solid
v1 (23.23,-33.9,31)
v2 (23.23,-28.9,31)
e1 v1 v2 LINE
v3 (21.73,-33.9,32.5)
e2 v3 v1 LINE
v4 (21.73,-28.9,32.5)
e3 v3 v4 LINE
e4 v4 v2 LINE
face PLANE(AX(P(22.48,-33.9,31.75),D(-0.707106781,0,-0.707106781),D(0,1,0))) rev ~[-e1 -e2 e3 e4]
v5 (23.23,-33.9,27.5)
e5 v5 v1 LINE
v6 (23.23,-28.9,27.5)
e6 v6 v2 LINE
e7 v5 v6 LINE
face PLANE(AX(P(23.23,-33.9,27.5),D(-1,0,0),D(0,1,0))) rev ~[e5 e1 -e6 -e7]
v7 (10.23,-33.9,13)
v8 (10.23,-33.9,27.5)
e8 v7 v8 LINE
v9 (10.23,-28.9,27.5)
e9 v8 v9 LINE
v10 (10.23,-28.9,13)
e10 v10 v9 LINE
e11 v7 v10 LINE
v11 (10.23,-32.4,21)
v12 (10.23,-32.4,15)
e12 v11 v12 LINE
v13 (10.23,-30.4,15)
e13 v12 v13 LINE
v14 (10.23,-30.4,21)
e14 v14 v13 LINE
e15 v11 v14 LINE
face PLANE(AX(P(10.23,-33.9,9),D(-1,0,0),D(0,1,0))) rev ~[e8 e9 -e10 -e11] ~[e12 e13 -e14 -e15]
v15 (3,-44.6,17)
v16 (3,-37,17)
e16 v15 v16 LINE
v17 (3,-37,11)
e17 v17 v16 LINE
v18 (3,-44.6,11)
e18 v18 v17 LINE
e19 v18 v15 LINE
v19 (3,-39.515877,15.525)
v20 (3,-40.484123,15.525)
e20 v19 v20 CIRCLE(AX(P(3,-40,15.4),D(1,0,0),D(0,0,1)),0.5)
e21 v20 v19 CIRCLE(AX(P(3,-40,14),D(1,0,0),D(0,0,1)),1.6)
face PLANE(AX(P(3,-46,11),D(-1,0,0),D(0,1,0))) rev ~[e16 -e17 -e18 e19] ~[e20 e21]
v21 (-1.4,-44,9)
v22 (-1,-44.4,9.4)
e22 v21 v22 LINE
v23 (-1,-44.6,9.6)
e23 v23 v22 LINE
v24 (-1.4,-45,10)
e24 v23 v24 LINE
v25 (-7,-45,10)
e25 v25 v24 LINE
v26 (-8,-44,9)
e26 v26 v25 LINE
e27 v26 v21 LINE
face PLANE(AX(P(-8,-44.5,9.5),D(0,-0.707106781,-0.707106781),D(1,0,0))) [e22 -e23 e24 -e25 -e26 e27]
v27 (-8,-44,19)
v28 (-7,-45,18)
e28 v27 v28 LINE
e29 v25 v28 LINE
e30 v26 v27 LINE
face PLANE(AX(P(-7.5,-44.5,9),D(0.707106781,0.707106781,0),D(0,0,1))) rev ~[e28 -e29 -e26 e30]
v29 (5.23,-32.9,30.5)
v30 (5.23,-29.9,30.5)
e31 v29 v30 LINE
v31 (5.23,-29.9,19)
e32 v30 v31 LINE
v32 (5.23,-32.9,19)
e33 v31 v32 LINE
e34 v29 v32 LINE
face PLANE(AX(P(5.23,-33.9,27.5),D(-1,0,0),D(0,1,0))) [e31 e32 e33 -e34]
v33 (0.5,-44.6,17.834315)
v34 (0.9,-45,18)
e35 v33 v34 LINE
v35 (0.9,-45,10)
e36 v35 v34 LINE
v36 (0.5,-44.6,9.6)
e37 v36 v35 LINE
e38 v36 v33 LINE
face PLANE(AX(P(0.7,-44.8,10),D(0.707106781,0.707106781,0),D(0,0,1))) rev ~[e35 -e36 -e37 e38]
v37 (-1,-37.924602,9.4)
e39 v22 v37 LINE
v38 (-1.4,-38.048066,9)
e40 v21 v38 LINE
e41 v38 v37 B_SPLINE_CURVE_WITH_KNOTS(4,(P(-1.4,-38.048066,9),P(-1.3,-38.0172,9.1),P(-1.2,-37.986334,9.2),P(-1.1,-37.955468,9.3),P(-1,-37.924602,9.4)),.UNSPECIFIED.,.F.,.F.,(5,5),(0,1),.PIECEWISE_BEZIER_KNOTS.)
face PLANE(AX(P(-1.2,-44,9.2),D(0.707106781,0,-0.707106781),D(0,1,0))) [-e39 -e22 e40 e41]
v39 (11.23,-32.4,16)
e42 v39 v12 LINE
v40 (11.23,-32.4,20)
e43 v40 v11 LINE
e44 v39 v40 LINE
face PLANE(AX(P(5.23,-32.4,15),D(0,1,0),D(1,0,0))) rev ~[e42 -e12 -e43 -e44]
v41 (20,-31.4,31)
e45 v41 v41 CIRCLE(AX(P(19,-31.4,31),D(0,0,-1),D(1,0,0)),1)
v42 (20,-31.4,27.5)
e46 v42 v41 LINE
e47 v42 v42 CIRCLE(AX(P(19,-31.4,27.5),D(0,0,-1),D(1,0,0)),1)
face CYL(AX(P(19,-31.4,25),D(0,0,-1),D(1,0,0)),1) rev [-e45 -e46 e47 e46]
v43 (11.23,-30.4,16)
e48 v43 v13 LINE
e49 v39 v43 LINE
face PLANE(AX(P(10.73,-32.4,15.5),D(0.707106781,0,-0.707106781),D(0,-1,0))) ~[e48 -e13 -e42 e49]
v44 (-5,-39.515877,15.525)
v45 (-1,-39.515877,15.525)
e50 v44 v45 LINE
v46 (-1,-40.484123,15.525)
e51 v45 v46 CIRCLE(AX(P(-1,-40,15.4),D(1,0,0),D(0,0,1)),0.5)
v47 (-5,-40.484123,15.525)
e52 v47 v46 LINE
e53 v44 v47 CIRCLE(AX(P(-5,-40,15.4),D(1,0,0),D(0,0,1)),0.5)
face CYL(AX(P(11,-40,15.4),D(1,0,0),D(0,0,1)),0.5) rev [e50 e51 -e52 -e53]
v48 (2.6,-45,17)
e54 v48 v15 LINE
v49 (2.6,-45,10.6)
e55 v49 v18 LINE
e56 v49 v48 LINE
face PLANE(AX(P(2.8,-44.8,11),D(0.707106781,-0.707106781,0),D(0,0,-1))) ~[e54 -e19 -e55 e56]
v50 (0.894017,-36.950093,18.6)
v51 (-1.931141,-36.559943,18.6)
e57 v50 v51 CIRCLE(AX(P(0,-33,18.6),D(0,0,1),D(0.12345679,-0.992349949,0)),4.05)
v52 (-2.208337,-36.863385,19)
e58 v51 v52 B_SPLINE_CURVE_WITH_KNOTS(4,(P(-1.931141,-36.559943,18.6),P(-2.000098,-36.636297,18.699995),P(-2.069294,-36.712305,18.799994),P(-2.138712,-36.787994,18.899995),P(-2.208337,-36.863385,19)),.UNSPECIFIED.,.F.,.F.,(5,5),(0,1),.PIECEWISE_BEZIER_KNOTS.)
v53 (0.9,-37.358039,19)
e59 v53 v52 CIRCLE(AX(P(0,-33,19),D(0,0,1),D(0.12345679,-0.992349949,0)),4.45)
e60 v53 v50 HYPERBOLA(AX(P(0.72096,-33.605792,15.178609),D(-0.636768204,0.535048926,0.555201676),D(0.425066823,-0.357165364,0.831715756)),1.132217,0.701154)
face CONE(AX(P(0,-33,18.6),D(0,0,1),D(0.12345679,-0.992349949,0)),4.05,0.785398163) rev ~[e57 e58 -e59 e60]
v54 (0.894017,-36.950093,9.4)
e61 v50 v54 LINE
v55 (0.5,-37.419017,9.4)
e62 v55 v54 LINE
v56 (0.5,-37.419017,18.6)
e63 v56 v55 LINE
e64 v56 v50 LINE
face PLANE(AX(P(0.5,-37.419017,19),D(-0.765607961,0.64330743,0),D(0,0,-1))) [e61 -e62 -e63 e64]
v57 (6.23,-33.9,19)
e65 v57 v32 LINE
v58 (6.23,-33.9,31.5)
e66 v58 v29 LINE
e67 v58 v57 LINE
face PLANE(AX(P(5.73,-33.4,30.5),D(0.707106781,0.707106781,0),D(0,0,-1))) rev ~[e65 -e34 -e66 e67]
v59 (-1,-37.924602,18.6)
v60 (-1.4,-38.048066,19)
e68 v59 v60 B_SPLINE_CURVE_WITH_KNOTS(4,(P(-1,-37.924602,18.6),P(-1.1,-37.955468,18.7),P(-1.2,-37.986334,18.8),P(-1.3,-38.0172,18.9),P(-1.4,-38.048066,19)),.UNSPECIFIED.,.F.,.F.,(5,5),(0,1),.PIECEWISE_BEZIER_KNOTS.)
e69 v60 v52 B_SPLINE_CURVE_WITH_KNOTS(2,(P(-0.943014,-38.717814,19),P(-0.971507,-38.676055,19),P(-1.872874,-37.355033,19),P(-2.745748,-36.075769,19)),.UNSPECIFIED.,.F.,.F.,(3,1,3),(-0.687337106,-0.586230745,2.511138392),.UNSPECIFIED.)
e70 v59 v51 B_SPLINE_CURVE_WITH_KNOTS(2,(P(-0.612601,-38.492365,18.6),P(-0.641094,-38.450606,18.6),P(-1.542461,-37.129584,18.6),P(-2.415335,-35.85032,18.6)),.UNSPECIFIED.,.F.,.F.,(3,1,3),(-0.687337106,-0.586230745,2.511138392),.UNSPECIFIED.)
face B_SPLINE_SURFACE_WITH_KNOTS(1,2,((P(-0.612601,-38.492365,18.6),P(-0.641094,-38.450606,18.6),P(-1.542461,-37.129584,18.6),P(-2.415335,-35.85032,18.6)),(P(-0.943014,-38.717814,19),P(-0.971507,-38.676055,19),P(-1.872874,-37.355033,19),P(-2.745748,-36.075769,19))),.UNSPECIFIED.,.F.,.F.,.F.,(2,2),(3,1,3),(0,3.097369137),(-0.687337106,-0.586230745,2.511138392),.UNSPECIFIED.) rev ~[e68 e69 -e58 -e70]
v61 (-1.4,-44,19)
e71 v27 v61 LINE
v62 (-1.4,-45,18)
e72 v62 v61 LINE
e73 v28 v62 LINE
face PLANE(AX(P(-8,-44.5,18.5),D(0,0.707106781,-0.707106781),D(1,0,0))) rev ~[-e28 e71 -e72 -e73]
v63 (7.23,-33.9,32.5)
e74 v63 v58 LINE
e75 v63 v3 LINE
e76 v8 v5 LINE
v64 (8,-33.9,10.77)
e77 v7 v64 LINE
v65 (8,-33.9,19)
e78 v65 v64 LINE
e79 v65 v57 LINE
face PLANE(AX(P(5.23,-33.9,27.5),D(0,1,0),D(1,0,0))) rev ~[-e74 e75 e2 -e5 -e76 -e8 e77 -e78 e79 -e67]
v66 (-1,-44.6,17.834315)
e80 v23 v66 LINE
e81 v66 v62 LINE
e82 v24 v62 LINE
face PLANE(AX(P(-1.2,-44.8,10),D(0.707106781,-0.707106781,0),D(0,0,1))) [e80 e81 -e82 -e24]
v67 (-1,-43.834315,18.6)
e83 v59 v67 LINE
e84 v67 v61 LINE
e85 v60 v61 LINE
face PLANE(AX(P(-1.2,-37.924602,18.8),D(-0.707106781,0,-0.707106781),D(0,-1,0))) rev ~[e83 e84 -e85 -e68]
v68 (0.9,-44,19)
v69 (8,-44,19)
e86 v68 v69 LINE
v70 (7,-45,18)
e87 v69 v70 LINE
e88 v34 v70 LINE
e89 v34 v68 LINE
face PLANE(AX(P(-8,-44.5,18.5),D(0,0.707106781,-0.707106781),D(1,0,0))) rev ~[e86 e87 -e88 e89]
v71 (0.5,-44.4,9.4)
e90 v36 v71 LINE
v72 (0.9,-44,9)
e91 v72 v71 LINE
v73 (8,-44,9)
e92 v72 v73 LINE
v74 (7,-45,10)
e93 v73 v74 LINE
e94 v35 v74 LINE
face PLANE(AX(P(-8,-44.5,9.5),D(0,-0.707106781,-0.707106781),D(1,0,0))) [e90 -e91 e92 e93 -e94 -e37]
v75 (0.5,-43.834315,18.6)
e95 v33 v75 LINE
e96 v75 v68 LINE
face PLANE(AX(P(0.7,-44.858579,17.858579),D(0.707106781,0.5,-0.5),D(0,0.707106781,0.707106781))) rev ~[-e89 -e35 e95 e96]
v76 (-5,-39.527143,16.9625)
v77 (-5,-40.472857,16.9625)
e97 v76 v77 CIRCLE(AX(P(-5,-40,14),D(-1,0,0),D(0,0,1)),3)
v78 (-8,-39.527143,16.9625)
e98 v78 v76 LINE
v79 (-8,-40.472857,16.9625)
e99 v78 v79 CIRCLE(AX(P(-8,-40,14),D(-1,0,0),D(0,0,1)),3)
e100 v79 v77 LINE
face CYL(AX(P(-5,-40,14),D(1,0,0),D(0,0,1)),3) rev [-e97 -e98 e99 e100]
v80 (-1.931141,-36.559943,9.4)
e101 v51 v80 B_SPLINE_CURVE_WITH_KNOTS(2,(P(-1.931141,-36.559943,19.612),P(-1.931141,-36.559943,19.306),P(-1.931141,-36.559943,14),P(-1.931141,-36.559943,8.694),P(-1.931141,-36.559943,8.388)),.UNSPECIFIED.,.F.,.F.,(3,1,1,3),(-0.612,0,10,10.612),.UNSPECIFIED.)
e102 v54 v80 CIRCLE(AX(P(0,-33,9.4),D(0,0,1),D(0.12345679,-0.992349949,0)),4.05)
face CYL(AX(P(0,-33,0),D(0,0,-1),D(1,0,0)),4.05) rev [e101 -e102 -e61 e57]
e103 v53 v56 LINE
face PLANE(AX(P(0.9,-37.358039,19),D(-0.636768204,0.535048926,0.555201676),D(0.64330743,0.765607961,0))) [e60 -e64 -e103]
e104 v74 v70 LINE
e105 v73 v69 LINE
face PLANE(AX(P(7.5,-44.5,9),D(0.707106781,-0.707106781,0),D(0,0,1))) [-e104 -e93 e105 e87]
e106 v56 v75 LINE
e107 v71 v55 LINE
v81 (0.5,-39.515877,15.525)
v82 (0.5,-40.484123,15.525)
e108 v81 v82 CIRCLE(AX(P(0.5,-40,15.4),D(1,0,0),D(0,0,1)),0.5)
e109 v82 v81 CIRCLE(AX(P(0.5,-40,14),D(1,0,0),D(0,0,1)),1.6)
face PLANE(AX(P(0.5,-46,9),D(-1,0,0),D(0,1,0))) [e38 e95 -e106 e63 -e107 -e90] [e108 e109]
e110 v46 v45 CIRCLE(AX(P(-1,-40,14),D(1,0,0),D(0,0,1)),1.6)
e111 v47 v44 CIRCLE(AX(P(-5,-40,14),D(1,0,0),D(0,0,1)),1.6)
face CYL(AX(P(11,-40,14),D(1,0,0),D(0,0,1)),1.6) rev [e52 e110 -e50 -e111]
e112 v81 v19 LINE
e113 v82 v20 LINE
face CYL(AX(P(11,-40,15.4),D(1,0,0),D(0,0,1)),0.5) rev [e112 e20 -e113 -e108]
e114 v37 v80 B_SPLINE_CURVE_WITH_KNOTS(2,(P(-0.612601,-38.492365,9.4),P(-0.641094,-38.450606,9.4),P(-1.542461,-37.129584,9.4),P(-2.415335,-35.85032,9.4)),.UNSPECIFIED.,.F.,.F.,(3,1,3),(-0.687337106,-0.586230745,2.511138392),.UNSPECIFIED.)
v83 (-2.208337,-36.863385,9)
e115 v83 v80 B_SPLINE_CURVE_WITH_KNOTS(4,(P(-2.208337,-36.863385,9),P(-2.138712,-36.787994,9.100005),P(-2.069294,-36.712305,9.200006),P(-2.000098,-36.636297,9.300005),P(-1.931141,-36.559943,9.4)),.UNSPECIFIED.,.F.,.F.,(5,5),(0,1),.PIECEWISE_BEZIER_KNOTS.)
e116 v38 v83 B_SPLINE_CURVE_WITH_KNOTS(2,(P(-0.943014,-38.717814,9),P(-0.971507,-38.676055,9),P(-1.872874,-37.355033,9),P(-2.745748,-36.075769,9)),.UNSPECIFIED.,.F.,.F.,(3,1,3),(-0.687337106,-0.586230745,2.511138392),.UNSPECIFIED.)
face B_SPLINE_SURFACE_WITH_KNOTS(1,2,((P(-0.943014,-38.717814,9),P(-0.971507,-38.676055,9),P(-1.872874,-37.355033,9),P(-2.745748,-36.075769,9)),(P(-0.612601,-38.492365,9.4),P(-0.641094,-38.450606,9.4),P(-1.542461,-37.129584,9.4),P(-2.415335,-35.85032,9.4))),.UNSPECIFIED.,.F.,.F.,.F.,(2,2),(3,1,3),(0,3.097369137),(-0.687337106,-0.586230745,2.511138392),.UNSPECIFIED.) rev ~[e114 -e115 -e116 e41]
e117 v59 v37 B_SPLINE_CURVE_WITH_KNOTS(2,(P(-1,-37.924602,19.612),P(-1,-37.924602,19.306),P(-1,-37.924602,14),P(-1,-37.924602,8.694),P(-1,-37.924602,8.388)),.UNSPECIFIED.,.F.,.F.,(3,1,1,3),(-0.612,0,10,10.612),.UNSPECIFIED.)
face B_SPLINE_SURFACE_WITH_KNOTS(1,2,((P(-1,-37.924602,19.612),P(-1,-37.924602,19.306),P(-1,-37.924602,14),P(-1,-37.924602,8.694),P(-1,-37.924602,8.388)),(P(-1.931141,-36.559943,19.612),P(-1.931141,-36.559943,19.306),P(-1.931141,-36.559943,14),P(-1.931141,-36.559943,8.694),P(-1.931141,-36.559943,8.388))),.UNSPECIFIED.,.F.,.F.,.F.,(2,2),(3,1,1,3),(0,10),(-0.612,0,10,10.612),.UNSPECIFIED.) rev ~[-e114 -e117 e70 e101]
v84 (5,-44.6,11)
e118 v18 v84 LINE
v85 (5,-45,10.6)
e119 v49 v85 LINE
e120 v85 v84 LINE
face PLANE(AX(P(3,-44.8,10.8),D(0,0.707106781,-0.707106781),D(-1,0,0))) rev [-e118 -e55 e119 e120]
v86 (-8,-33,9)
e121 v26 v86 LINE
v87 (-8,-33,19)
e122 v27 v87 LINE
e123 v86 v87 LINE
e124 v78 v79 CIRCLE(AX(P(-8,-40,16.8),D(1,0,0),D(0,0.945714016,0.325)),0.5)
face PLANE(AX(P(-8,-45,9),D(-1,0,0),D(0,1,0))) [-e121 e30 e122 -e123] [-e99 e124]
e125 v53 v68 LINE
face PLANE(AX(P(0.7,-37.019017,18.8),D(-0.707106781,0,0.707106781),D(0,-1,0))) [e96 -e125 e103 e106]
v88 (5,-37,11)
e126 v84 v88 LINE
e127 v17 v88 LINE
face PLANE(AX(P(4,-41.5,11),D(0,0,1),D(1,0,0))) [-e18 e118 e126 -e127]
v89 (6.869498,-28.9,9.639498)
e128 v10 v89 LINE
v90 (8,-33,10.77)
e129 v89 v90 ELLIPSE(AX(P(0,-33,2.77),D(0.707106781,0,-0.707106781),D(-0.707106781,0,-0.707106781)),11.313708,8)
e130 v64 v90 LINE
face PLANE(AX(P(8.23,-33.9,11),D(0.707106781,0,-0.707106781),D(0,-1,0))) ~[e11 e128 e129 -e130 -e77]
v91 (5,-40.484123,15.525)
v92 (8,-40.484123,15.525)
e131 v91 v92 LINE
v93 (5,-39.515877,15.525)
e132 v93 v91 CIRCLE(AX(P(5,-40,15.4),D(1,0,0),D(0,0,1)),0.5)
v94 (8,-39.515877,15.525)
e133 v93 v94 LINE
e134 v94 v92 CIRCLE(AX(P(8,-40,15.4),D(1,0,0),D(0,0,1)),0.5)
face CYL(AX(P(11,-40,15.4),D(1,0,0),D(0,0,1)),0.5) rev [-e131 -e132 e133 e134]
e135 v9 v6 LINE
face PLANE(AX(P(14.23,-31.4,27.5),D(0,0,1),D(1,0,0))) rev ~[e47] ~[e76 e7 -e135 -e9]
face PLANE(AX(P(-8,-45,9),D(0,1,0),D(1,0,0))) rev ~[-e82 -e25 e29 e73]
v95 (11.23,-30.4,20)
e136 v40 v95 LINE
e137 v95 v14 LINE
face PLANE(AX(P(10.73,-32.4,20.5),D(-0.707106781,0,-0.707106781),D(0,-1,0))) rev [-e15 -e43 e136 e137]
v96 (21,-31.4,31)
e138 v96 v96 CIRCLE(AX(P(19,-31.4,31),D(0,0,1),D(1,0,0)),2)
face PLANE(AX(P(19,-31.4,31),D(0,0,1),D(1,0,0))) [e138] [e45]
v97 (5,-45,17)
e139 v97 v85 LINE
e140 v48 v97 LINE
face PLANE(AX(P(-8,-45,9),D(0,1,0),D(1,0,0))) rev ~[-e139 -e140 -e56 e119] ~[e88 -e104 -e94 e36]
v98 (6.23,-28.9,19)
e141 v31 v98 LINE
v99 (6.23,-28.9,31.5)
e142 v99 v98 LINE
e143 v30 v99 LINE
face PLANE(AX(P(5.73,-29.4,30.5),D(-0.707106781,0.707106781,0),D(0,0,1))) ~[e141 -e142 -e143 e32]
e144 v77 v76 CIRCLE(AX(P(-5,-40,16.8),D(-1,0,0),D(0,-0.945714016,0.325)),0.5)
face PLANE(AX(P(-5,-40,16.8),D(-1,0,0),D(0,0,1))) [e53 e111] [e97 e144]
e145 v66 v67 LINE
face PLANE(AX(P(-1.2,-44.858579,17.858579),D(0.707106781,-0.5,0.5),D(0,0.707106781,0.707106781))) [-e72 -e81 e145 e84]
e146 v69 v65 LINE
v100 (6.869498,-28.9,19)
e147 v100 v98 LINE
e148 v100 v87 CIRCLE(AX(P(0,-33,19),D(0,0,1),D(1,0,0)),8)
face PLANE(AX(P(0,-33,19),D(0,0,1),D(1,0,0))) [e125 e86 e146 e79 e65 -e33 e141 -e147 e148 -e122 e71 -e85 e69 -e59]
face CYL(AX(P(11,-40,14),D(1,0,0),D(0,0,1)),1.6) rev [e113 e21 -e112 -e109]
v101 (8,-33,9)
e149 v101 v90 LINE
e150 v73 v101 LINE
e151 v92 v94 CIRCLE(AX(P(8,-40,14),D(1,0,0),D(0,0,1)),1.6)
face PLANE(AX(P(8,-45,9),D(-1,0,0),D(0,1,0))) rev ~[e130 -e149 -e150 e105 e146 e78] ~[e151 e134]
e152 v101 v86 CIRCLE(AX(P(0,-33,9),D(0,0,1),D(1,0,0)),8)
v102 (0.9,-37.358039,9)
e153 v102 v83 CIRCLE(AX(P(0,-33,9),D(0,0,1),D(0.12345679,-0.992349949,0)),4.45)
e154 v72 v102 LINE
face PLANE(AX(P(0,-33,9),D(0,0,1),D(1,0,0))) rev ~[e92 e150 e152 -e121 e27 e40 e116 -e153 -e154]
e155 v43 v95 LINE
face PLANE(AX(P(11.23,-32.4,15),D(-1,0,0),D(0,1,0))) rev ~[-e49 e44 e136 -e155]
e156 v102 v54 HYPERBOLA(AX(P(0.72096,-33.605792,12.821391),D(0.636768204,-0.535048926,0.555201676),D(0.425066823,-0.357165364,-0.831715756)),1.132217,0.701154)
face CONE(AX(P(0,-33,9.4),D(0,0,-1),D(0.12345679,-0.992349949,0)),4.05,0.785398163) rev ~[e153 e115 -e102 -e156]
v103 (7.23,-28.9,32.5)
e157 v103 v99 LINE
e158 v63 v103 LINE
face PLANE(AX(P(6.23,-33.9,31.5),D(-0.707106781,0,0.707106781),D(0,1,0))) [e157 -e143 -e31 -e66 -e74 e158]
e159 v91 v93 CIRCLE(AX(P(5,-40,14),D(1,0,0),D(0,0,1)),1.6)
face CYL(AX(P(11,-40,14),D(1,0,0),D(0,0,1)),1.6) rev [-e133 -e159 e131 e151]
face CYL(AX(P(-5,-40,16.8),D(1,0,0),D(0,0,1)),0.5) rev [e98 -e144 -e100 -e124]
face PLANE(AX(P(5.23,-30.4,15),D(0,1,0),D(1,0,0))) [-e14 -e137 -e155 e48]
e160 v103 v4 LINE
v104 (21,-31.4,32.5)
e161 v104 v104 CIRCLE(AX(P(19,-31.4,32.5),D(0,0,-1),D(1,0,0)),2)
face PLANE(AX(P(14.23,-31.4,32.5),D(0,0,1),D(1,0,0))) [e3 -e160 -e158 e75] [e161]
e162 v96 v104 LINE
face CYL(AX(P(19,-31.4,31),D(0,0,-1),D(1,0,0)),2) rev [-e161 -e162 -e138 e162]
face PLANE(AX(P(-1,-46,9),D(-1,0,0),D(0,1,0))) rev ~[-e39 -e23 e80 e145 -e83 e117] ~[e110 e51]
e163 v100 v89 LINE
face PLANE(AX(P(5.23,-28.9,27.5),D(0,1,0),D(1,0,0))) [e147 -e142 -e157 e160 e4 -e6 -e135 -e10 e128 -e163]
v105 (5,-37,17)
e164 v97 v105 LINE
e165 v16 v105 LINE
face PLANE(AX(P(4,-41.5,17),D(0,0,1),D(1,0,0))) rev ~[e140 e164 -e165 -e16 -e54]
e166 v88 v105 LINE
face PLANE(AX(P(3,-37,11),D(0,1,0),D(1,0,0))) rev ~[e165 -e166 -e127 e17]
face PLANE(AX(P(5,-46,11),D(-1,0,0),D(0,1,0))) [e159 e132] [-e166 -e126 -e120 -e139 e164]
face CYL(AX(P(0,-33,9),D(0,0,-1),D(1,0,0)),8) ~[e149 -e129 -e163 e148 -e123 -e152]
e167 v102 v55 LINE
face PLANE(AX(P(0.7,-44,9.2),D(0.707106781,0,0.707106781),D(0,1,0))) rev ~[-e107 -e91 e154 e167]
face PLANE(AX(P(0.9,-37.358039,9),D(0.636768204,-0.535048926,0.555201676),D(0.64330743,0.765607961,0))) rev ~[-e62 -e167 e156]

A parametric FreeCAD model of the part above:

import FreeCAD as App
import Part
import Sketcher
from FreeCAD import Vector
Q = App.Units.Quantity


def edges_at(feature, points):
    """Names of the edges that pass closest to the given points."""
    edges = feature.Shape.Edges
    near = lambda p: min(range(len(edges)), key=lambda i: edges[i].distToShape(Part.Vertex(*p))[0])
    return sorted({f"Edge{near(p) + 1}" for p in points})


def add_polygon(sketch, points):
    """Adds a closed chain of lines whose ends are joined by coincident constraints."""
    first, n = sketch.GeometryCount, len(points)
    for a, b in zip(points, points[1:] + points[:1]):
        sketch.addGeometry(Part.LineSegment(App.Vector(*a, 0), App.Vector(*b, 0)), False)
    for i in range(n):
        sketch.addConstraint(Sketcher.Constraint("Coincident", first + i, 2, first + (i + 1) % n, 1))

doc = App.newDocument("Part")
params = doc.addObject("Spreadsheet::Sheet", "Params")
for row, (alias, value) in enumerate([
    ("sketch1_width", "6 mm"),
    ("sketch1_height", "2 mm"),
    ("pad1_length", "6 mm"),
    ("chamfer_size", "1 mm"),
    ("sketch2_diameter", "4 mm"),
    ("pad2_length", "2 mm"),
    ("sketch3_diameter", "2 mm"),
    ("pad3_length", "14 mm"),
    ("sketch4_width", "18 mm"),
    ("sketch4_height", "5 mm"),
    ("pad4_length", "5 mm"),
    ("chamfer2_size", "1.5 mm"),
    ("chamfer3_size", "2 mm"),
    ("sketch5_width", "5 mm"),
    ("pad5_length", "19 mm"),
    ("chamfer4_size", "4 mm"),
    ("chamfer5_size", "1 mm"),
    ("sketch6_width", "2 mm"),
    ("sketch6_height", "9 mm"),
    ("pad6_length", "6 mm"),
    ("sketch7_height", "12 mm"),
    ("sketch7_width", "1.5 mm"),
    ("pad7_length", "11 mm"),
    ("sketch8_diameter", "8.1 mm"),
    ("pad8_length", "19 mm"),
    ("sketch9_diameter", "1 mm"),
    ("pad9_length", "20 mm"),
    ("sketch10_diameter", "3.2 mm"),
    ("pad10_length", "20 mm"),
    ("sketch11_diameter", "1 mm"),
    ("pad11_length", "3 mm"),
    ("sketch12_diameter", "6 mm"),
    ("pad12_length", "3 mm"),
    ("sketch13_diameter", "8 mm"),
    ("pad13_length", "10 mm"),
    ("sketch14_diameter", "16 mm"),
    ("pad14_length", "10 mm"),
    ("sketch15_width", "16 mm"),
    ("sketch15_height", "12 mm"),
    ("pad15_length", "10 mm"),
    ("chamfer6_size", "1 mm"),
    ("chamfer7_size", "1 mm"),
    ("chamfer8_size", "0.4 mm"),
], start=1):
    params.set(f"A{row}", alias)
    params.set(f"B{row}", "=" + value)
    params.setAlias(f"B{row}", alias)

body = doc.addObject("PartDesign::Body", "Body")

# Sketch on XY plane
sketch1 = body.newObject("Sketcher::SketchObject", "Sketch")
sketch1.AttachmentSupport = (doc.getObject("XY_Plane"), [""])
sketch1.MapMode = "FlatFace"
sketch1.AttachmentOffset = App.Placement(Vector(0, 0, 15), App.Rotation())
add_polygon(sketch1, [(5.2, -30.4), (5.2, -32.4), (11.2, -32.4), (11.2, -30.4)])  # lines 0-3
sketch1.addConstraint([
    Sketcher.Constraint("Vertical", 0),
    Sketcher.Constraint("Horizontal", 1),
    Sketcher.Constraint("Vertical", 2),
    Sketcher.Constraint("Horizontal", 3),
    Sketcher.Constraint("DistanceX", 1, 1, 1, 2, Q("6 mm")),
    Sketcher.Constraint("DistanceY", 0, 2, 0, 1, Q("2 mm")),
    Sketcher.Constraint("DistanceY", 0, 2, -1, 1, Q("32.4 mm")),
    Sketcher.Constraint("DistanceX", -1, 1, 0, 2, Q("5.23 mm")),
])
sketch1.setExpression("Constraints[8]", "Params.sketch1_width")
sketch1.setExpression("Constraints[9]", "Params.sketch1_height")
pad1 = body.newObject("PartDesign::Pad", "Pad")
pad1.Profile = sketch1
pad1.setExpression("Length", "Params.pad1_length")
doc.recompute()

chamfer = body.newObject("PartDesign::Chamfer", "Chamfer")
chamfer.Base = (pad1, edges_at(pad1, [(11.23, -31.4, 21), (11.23, -31.4, 15)]))
chamfer.setExpression("Size", "Params.chamfer_size")
body2 = doc.addObject("PartDesign::Body", "Body001")

# Sketch on XY plane
sketch2 = body2.newObject("Sketcher::SketchObject", "Sketch001")
sketch2.AttachmentSupport = (doc.getObject("XY_Plane001"), [""])
sketch2.MapMode = "FlatFace"
sketch2.AttachmentOffset = App.Placement(Vector(0, 0, 31), App.Rotation())
sketch2.addGeometry(Part.Circle(Vector(19, -31.4, 0), Vector(0, 0, 1), 2), False)
sketch2.addConstraint([
    Sketcher.Constraint("Diameter", 0, Q("4 mm")),
    Sketcher.Constraint("DistanceX", -1, 1, 0, 3, Q("19 mm")),
    Sketcher.Constraint("DistanceY", 0, 3, -1, 1, Q("31.4 mm")),
])
sketch2.setExpression("Constraints[0]", "Params.sketch2_diameter")
pad2 = body2.newObject("PartDesign::Pad", "Pad001")
pad2.Profile = sketch2
pad2.setExpression("Length", "Params.pad2_length")
body3 = doc.addObject("PartDesign::Body", "Body002")

# Sketch on XY plane
sketch3 = body3.newObject("Sketcher::SketchObject", "Sketch002")
sketch3.AttachmentSupport = (doc.getObject("XY_Plane002"), [""])
sketch3.MapMode = "FlatFace"
sketch3.AttachmentOffset = App.Placement(Vector(0, 0, 25), App.Rotation())
sketch3.addGeometry(Part.Circle(Vector(19, -31.4, 0), Vector(0, 0, 1), 1), False)
sketch3.addConstraint([
    Sketcher.Constraint("Diameter", 0, Q("2 mm")),
    Sketcher.Constraint("DistanceX", -1, 1, 0, 3, Q("19 mm")),
    Sketcher.Constraint("DistanceY", 0, 3, -1, 1, Q("31.4 mm")),
])
sketch3.setExpression("Constraints[0]", "Params.sketch3_diameter")
pad3 = body3.newObject("PartDesign::Pad", "Pad002")
pad3.Profile = sketch3
pad3.setExpression("Length", "Params.pad3_length")
body4 = doc.addObject("PartDesign::Body", "Body003")

# Sketch on XY plane
sketch4 = body4.newObject("Sketcher::SketchObject", "Sketch003")
sketch4.AttachmentSupport = (doc.getObject("XY_Plane003"), [""])
sketch4.MapMode = "FlatFace"
sketch4.AttachmentOffset = App.Placement(Vector(0, 0, 27.5), App.Rotation())
add_polygon(sketch4, [(5, -29), (5, -34), (23, -34), (23, -29)])  # lines 0-3
sketch4.addConstraint([
    Sketcher.Constraint("Vertical", 0),
    Sketcher.Constraint("Horizontal", 1),
    Sketcher.Constraint("Vertical", 2),
    Sketcher.Constraint("Horizontal", 3),
    Sketcher.Constraint("DistanceX", 1, 1, 1, 2, Q("18 mm")),
    Sketcher.Constraint("DistanceY", 0, 2, 0, 1, Q("5 mm")),
    Sketcher.Constraint("DistanceY", 0, 2, -1, 1, Q("33.9 mm")),
    Sketcher.Constraint("DistanceX", -1, 1, 0, 2, Q("5.23 mm")),
])
sketch4.setExpression("Constraints[8]", "Params.sketch4_width")
sketch4.setExpression("Constraints[9]", "Params.sketch4_height")
pad4 = body4.newObject("PartDesign::Pad", "Pad003")
pad4.Profile = sketch4
pad4.setExpression("Length", "Params.pad4_length")
doc.recompute()

boolean = body4.newObject("PartDesign::Boolean", "Boolean")
boolean.Type = "Cut"
boolean.addObjects([body3])
doc.recompute()

chamfer2 = body4.newObject("PartDesign::Chamfer", "Chamfer001")
chamfer2.Base = (boolean, edges_at(boolean, [(23.23, -31.4, 32.5)]))
chamfer2.setExpression("Size", "Params.chamfer2_size")
doc.recompute()

chamfer3 = body4.newObject("PartDesign::Chamfer", "Chamfer002")
chamfer3.Base = (chamfer2, edges_at(chamfer2, [(5.23, -31.4, 32.5)]))
chamfer3.setExpression("Size", "Params.chamfer3_size")
doc.recompute()

boolean2 = body4.newObject("PartDesign::Boolean", "Boolean001")
boolean2.Type = "Cut"
boolean2.addObjects([body2])
body5 = doc.addObject("PartDesign::Body", "Body004")

# Sketch on XY plane
sketch5 = body5.newObject("Sketcher::SketchObject", "Sketch004")
sketch5.AttachmentSupport = (doc.getObject("XY_Plane004"), [""])
sketch5.MapMode = "FlatFace"
sketch5.AttachmentOffset = App.Placement(Vector(0, 0, 9), App.Rotation())
add_polygon(sketch5, [(5, -29), (5, -34), (10, -34), (10, -29)])  # lines 0-3
sketch5.addConstraint([
    Sketcher.Constraint("Vertical", 0),
    Sketcher.Constraint("Horizontal", 1),
    Sketcher.Constraint("Vertical", 2),
    Sketcher.Constraint("Horizontal", 3),
    Sketcher.Constraint("Equal", 3, 0),
    Sketcher.Constraint("DistanceX", 1, 1, 1, 2, Q("5 mm")),
    Sketcher.Constraint("DistanceY", 0, 2, -1, 1, Q("33.9 mm")),
    Sketcher.Constraint("DistanceX", -1, 1, 0, 2, Q("5.23 mm")),
])
sketch5.setExpression("Constraints[9]", "Params.sketch5_width")
pad5 = body5.newObject("PartDesign::Pad", "Pad004")
pad5.Profile = sketch5
pad5.setExpression("Length", "Params.pad5_length")
doc.recompute()

chamfer4 = body5.newObject("PartDesign::Chamfer", "Chamfer003")
chamfer4.Base = (pad5, edges_at(pad5, [(10.23, -31.4, 9)]))
chamfer4.setExpression("Size", "Params.chamfer4_size")
doc.recompute()

boolean3 = body5.newObject("PartDesign::Boolean", "Boolean002")
boolean3.Type = "Fuse"
boolean3.addObjects([body])
doc.recompute()

boolean4 = body5.newObject("PartDesign::Boolean", "Boolean003")
boolean4.Type = "Fuse"
boolean4.addObjects([body4])
doc.recompute()

chamfer5 = body5.newObject("PartDesign::Chamfer", "Chamfer004")
chamfer5.Base = (boolean4, edges_at(boolean4, [(5.23, -33.9, 19.75), (5.23, -28.9, 19.75)]))
chamfer5.setExpression("Size", "Params.chamfer5_size")
body6 = doc.addObject("PartDesign::Body", "Body005")

# Sketch on XY plane
sketch6 = body6.newObject("Sketcher::SketchObject", "Sketch005")
sketch6.AttachmentSupport = (doc.getObject("XY_Plane005"), [""])
sketch6.MapMode = "FlatFace"
sketch6.AttachmentOffset = App.Placement(Vector(0, 0, 11), App.Rotation())
add_polygon(sketch6, [(3, -37), (3, -46), (5, -46), (5, -37)])  # lines 0-3
sketch6.addConstraint([
    Sketcher.Constraint("Vertical", 0),
    Sketcher.Constraint("Horizontal", 1),
    Sketcher.Constraint("Vertical", 2),
    Sketcher.Constraint("Horizontal", 3),
    Sketcher.Constraint("DistanceX", 1, 1, 1, 2, Q("2 mm")),
    Sketcher.Constraint("DistanceY", 0, 2, 0, 1, Q("9 mm")),
    Sketcher.Constraint("DistanceX", -1, 1, 0, 2, Q("3 mm")),
    Sketcher.Constraint("DistanceY", 0, 2, -1, 1, Q("46 mm")),
])
sketch6.setExpression("Constraints[8]", "Params.sketch6_width")
sketch6.setExpression("Constraints[9]", "Params.sketch6_height")
pad6 = body6.newObject("PartDesign::Pad", "Pad005")
pad6.Profile = sketch6
pad6.setExpression("Length", "Params.pad6_length")
body7 = doc.addObject("PartDesign::Body", "Body006")

# Sketch on XY plane
sketch7 = body7.newObject("Sketcher::SketchObject", "Sketch006")
sketch7.AttachmentSupport = (doc.getObject("XY_Plane006"), [""])
sketch7.MapMode = "FlatFace"
sketch7.AttachmentOffset = App.Placement(Vector(0, 0, 9), App.Rotation())
add_polygon(sketch7, [(-1, -34), (-1, -46), (0.5, -46), (0.5, -34)])  # lines 0-3
sketch7.addConstraint([
    Sketcher.Constraint("Vertical", 0),
    Sketcher.Constraint("Horizontal", 1),
    Sketcher.Constraint("Vertical", 2),
    Sketcher.Constraint("Horizontal", 3),
    Sketcher.Constraint("DistanceY", 0, 2, 0, 1, Q("12 mm")),
    Sketcher.Constraint("DistanceX", 1, 1, 1, 2, Q("1.5 mm")),
    Sketcher.Constraint("DistanceX", 0, 2, -1, 1, Q("1 mm")),
    Sketcher.Constraint("DistanceY", 0, 2, -1, 1, Q("46 mm")),
])
sketch7.setExpression("Constraints[8]", "Params.sketch7_height")
sketch7.setExpression("Constraints[9]", "Params.sketch7_width")
pad7 = body7.newObject("PartDesign::Pad", "Pad006")
pad7.Profile = sketch7
pad7.setExpression("Length", "Params.pad7_length")
body8 = doc.addObject("PartDesign::Body", "Body007")

# Sketch on XY plane
sketch8 = body8.newObject("Sketcher::SketchObject", "Sketch007")
sketch8.AttachmentSupport = (doc.getObject("XY_Plane007"), [""])
sketch8.MapMode = "FlatFace"
sketch8.addGeometry(Part.Circle(Vector(0, -33, 0), Vector(0, 0, 1), 4), False)
sketch8.addConstraint([
    Sketcher.Constraint("PointOnObject", 0, 3, -2),
    Sketcher.Constraint("Diameter", 0, Q("8.1 mm")),
    Sketcher.Constraint("DistanceY", 0, 3, -1, 1, Q("33 mm")),
])
sketch8.setExpression("Constraints[1]", "Params.sketch8_diameter")
pad8 = body8.newObject("PartDesign::Pad", "Pad007")
pad8.Profile = sketch8
pad8.setExpression("Length", "Params.pad8_length")
body9 = doc.addObject("PartDesign::Body", "Body008")

# Sketch on YZ plane
sketch9 = body9.newObject("Sketcher::SketchObject", "Sketch008")
sketch9.AttachmentSupport = (doc.getObject("YZ_Plane008"), [""])
sketch9.MapMode = "FlatFace"
sketch9.AttachmentOffset = App.Placement(Vector(0, 0, 11), App.Rotation())
sketch9.addGeometry(Part.Circle(Vector(-40, 16.4, 0), Vector(0, 0, 1), 0.5), False)
sketch9.addConstraint([
    Sketcher.Constraint("Diameter", 0, Q("1 mm")),
    Sketcher.Constraint("DistanceX", 0, 3, -1, 1, Q("40 mm")),
    Sketcher.Constraint("DistanceY", -1, 1, 0, 3, Q("16.4 mm")),
])
sketch9.setExpression("Constraints[0]", "Params.sketch9_diameter")
pad9 = body9.newObject("PartDesign::Pad", "Pad008")
pad9.Profile = sketch9
pad9.setExpression("Length", "Params.pad9_length")
pad9.Reversed = True
body10 = doc.addObject("PartDesign::Body", "Body009")

# Sketch on YZ plane
sketch10 = body10.newObject("Sketcher::SketchObject", "Sketch009")
sketch10.AttachmentSupport = (doc.getObject("YZ_Plane009"), [""])
sketch10.MapMode = "FlatFace"
sketch10.AttachmentOffset = App.Placement(Vector(0, 0, 11), App.Rotation())
sketch10.addGeometry(Part.Circle(Vector(-40, 15, 0), Vector(0, 0, 1), 1.6), False)
sketch10.addConstraint([
    Sketcher.Constraint("Diameter", 0, Q("3.2 mm")),
    Sketcher.Constraint("DistanceX", 0, 3, -1, 1, Q("40 mm")),
    Sketcher.Constraint("DistanceY", -1, 1, 0, 3, Q("15 mm")),
])
sketch10.setExpression("Constraints[0]", "Params.sketch10_diameter")
pad10 = body10.newObject("PartDesign::Pad", "Pad009")
pad10.Profile = sketch10
pad10.setExpression("Length", "Params.pad10_length")
pad10.Reversed = True
doc.recompute()

boolean5 = body10.newObject("PartDesign::Boolean", "Boolean004")
boolean5.Type = "Fuse"
boolean5.addObjects([body9])
body11 = doc.addObject("PartDesign::Body", "Body010")
doc.recompute()

body10.Placement = App.Placement(Vector(0, 0, -1), App.Rotation(Vector(0, 0, 1), 0))
boolean6 = body11.newObject("PartDesign::Boolean", "Boolean005")
boolean6.Type = "Fuse"
boolean6.addObjects([body10])
body12 = doc.addObject("PartDesign::Body", "Body011")

# Sketch on YZ plane
sketch11 = body12.newObject("Sketcher::SketchObject", "Sketch010")
sketch11.AttachmentSupport = (doc.getObject("YZ_Plane011"), [""])
sketch11.MapMode = "FlatFace"
sketch11.AttachmentOffset = App.Placement(Vector(0, 0, -5), App.Rotation())
sketch11.addGeometry(Part.Circle(Vector(-40, 17.8, 0), Vector(0, 0, 1), 0.5), False)
sketch11.addConstraint([
    Sketcher.Constraint("Diameter", 0, Q("1 mm")),
    Sketcher.Constraint("DistanceX", 0, 3, -1, 1, Q("40 mm")),
    Sketcher.Constraint("DistanceY", -1, 1, 0, 3, Q("17.8 mm")),
])
sketch11.setExpression("Constraints[0]", "Params.sketch11_diameter")
pad11 = body12.newObject("PartDesign::Pad", "Pad010")
pad11.Profile = sketch11
pad11.setExpression("Length", "Params.pad11_length")
pad11.Reversed = True
body13 = doc.addObject("PartDesign::Body", "Body012")

# Sketch on YZ plane
sketch12 = body13.newObject("Sketcher::SketchObject", "Sketch011")
sketch12.AttachmentSupport = (doc.getObject("YZ_Plane012"), [""])
sketch12.MapMode = "FlatFace"
sketch12.AttachmentOffset = App.Placement(Vector(0, 0, -5), App.Rotation())
sketch12.addGeometry(Part.Circle(Vector(-40, 15, 0), Vector(0, 0, 1), 3), False)
sketch12.addConstraint([
    Sketcher.Constraint("Diameter", 0, Q("6 mm")),
    Sketcher.Constraint("DistanceX", 0, 3, -1, 1, Q("40 mm")),
    Sketcher.Constraint("DistanceY", -1, 1, 0, 3, Q("15 mm")),
])
sketch12.setExpression("Constraints[0]", "Params.sketch12_diameter")
pad12 = body13.newObject("PartDesign::Pad", "Pad011")
pad12.Profile = sketch12
pad12.setExpression("Length", "Params.pad12_length")
pad12.Reversed = True
doc.recompute()

boolean7 = body13.newObject("PartDesign::Boolean", "Boolean006")
boolean7.Type = "Fuse"
boolean7.addObjects([body12])
body14 = doc.addObject("PartDesign::Body", "Body013")
doc.recompute()

body13.Placement = App.Placement(Vector(0, 0, -1), App.Rotation(Vector(0, 0, 1), 0))
boolean8 = body14.newObject("PartDesign::Boolean", "Boolean007")
boolean8.Type = "Fuse"
boolean8.addObjects([body13])
doc.recompute()

boolean9 = body14.newObject("PartDesign::Boolean", "Boolean008")
boolean9.Type = "Fuse"
boolean9.addObjects([body11])
body15 = doc.addObject("PartDesign::Body", "Body014")

# Sketch on XY plane
sketch13 = body15.newObject("Sketcher::SketchObject", "Sketch012")
sketch13.AttachmentSupport = (doc.getObject("XY_Plane014"), [""])
sketch13.MapMode = "FlatFace"
sketch13.AttachmentOffset = App.Placement(Vector(0, 0, 9), App.Rotation())
sketch13.addGeometry(Part.Circle(Vector(0, -33, 0), Vector(0, 0, 1), 4), False)
sketch13.addConstraint([
    Sketcher.Constraint("PointOnObject", 0, 3, -2),
    Sketcher.Constraint("Diameter", 0, Q("8 mm")),
    Sketcher.Constraint("DistanceY", 0, 3, -1, 1, Q("33 mm")),
])
sketch13.setExpression("Constraints[1]", "Params.sketch13_diameter")
pad13 = body15.newObject("PartDesign::Pad", "Pad012")
pad13.Profile = sketch13
pad13.setExpression("Length", "Params.pad13_length")
body16 = doc.addObject("PartDesign::Body", "Body015")

# Sketch on XY plane
sketch14 = body16.newObject("Sketcher::SketchObject", "Sketch013")
sketch14.AttachmentSupport = (doc.getObject("XY_Plane015"), [""])
sketch14.MapMode = "FlatFace"
sketch14.AttachmentOffset = App.Placement(Vector(0, 0, 10), App.Rotation())
sketch14.addGeometry(Part.Circle(Vector(0, -33, 0), Vector(0, 0, 1), 8), False)
sketch14.addConstraint([
    Sketcher.Constraint("PointOnObject", 0, 3, -2),
    Sketcher.Constraint("Diameter", 0, Q("16 mm")),
    Sketcher.Constraint("DistanceY", 0, 3, -1, 1, Q("33 mm")),
])
sketch14.setExpression("Constraints[1]", "Params.sketch14_diameter")
pad14 = body16.newObject("PartDesign::Pad", "Pad013")
pad14.Profile = sketch14
pad14.setExpression("Length", "Params.pad14_length")
body17 = doc.addObject("PartDesign::Body", "Body016")

# Sketch on XY plane
sketch15 = body17.newObject("Sketcher::SketchObject", "Sketch014")
sketch15.AttachmentSupport = (doc.getObject("XY_Plane016"), [""])
sketch15.MapMode = "FlatFace"
sketch15.AttachmentOffset = App.Placement(Vector(0, 0, 10), App.Rotation())
add_polygon(sketch15, [(-8, -33), (-8, -45), (8, -45), (8, -33)])  # lines 0-3
sketch15.addConstraint([
    Sketcher.Constraint("Vertical", 0),
    Sketcher.Constraint("Horizontal", 1),
    Sketcher.Constraint("Vertical", 2),
    Sketcher.Constraint("Horizontal", 3),
    Sketcher.Constraint("DistanceX", 1, 1, 1, 2, Q("16 mm")),
    Sketcher.Constraint("DistanceY", 0, 2, 0, 1, Q("12 mm")),
    Sketcher.Constraint("DistanceX", 0, 2, -1, 1, Q("8 mm")),
    Sketcher.Constraint("DistanceY", 0, 2, -1, 1, Q("45 mm")),
])
sketch15.setExpression("Constraints[8]", "Params.sketch15_width")
sketch15.setExpression("Constraints[9]", "Params.sketch15_height")
pad15 = body17.newObject("PartDesign::Pad", "Pad014")
pad15.Profile = sketch15
pad15.setExpression("Length", "Params.pad15_length")
doc.recompute()

boolean10 = body17.newObject("PartDesign::Boolean", "Boolean009")
boolean10.Type = "Fuse"
boolean10.addObjects([body16])
body18 = doc.addObject("PartDesign::Body", "Body017")
doc.recompute()

body17.Placement = App.Placement(Vector(0, 0, -1), App.Rotation(Vector(0, 0, 1), 0))
boolean11 = body18.newObject("PartDesign::Boolean", "Boolean010")
boolean11.Type = "Fuse"
boolean11.addObjects([body17])
doc.recompute()

boolean12 = body18.newObject("PartDesign::Boolean", "Boolean011")
boolean12.Type = "Cut"
boolean12.addObjects([body15])
doc.recompute()

boolean13 = body18.newObject("PartDesign::Boolean", "Boolean012")
boolean13.Type = "Cut"
boolean13.addObjects([body14])
doc.recompute()

chamfer6 = body18.newObject("PartDesign::Chamfer", "Chamfer005")
chamfer6.Base = (boolean13, edges_at(boolean13, [
    (-8, -45, 14),
    (0, -45, 9),
    (8, -45, 14),
    (0, -45, 19),
]))
chamfer6.setExpression("Size", "Params.chamfer6_size")
doc.recompute()

boolean14 = body18.newObject("PartDesign::Boolean", "Boolean013")
boolean14.Type = "Cut"
boolean14.addObjects([body8])
doc.recompute()

boolean15 = body18.newObject("PartDesign::Boolean", "Boolean014")
boolean15.Type = "Cut"
boolean15.addObjects([body7])
doc.recompute()

boolean16 = body18.newObject("PartDesign::Boolean", "Boolean015")
boolean16.Type = "Cut"
boolean16.addObjects([body6])
doc.recompute()

chamfer7 = body18.newObject("PartDesign::Chamfer", "Chamfer006")
chamfer7.Base = (boolean16, edges_at(boolean16, [(-1, -36.925, 14)]))
chamfer7.setExpression("Size", "Params.chamfer7_size")
doc.recompute()

chamfer8 = body18.newObject("PartDesign::Chamfer", "Chamfer007")
chamfer8.Base = (chamfer7, edges_at(chamfer7, [
    (-1, -40.962, 19),
    (-1.466, -37.242, 19),
    (0.751, -29.02, 19),
    (-1, -40.962, 19),
    (-1, -40.962, 9),
    (-1, -44.5, 18.5),
    (-1, -40.962, 9),
    (-1, -45, 14),
    (-1.466, -37.242, 9),
    (0.751, -29.02, 19),
    (0.751, -29.02, 9),
    (0.751, -29.02, 9),
    (0.751, -29.02, 9),
    (0.5, -37.019, 14),
    (0.751, -29.02, 19),
    (0.5, -40.51, 19),
    (0.5, -40.51, 9),
    (0.5, -45, 14),
    (0.5, -44.5, 18.5),
    (0.5, -40.51, 19),
    (0.5, -40.51, 9),
    (4, -45, 11),
    (3, -45, 14),
]))
chamfer8.setExpression("Size", "Params.chamfer8_size")
doc.recompute()

boolean17 = body18.newObject("PartDesign::Boolean", "Boolean016")
boolean17.Type = "Fuse"
boolean17.addObjects([body5])

doc.recompute()
